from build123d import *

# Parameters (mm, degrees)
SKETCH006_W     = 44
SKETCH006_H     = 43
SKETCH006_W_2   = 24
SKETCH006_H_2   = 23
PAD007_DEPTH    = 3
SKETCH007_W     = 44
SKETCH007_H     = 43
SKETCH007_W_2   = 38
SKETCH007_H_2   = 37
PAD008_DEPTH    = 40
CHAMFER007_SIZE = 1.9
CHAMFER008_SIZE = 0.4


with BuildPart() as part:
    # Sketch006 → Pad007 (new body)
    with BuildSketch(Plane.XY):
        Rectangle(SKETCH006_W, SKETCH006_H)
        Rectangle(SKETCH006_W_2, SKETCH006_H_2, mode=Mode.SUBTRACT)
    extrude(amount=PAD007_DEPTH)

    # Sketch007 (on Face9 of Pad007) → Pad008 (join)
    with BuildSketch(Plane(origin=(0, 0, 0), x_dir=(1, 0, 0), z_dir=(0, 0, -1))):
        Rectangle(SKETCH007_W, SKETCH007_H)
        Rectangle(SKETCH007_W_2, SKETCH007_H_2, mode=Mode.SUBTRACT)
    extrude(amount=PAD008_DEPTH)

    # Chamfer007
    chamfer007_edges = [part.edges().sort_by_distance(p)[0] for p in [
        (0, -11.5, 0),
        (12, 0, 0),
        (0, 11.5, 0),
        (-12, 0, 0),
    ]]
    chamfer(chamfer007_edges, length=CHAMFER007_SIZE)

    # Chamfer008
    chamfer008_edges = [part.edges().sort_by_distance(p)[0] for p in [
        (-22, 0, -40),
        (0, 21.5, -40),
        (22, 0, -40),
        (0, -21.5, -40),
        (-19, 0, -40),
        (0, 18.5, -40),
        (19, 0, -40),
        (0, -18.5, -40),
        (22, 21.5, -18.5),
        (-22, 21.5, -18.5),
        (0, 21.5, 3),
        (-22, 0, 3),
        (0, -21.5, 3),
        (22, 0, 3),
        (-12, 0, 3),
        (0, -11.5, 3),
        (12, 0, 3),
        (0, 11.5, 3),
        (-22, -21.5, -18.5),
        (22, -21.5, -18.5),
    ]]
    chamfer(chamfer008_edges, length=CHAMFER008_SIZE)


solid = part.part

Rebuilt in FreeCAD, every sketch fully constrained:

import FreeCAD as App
import Part
import Sketcher

V = App.Vector


def edges_at(feature, points):
    """Names of the edges that pass closest to the given points."""
    edges = feature.Shape.Edges
    near = lambda p: min(range(len(edges)), key=lambda i: edges[i].distToShape(Part.Vertex(*p))[0])
    return sorted({f"Edge{near(p) + 1}" for p in points})


def add_polygon(sketch, points):
    """Adds a closed chain of lines whose ends are joined by coincident constraints."""
    first, n = sketch.GeometryCount, len(points)
    for a, b in zip(points, points[1:] + points[:1]):
        sketch.addGeometry(Part.LineSegment(App.Vector(*a, 0), App.Vector(*b, 0)), False)
    for i in range(n):
        sketch.addConstraint(Sketcher.Constraint("Coincident", first + i, 2, first + (i + 1) % n, 1))

doc = App.newDocument("Part")
body = doc.addObject("PartDesign::Body", "Body")

sketch1 = body.newObject("Sketcher::SketchObject", "Sketch")
sketch1.AttachmentSupport = (doc.getObject("XY_Plane"), [""])
sketch1.MapMode = "FlatFace"
add_polygon(sketch1, [(-22, 22), (-22, -22), (22, -22), (22, 22)])
add_polygon(sketch1, [(12, -12), (-12, -12), (-12, 12), (12, 12)])
sketch1.addConstraint([
    Sketcher.Constraint("Vertical", 0),
    Sketcher.Constraint("Horizontal", 1),
    Sketcher.Constraint("Vertical", 2),
    Sketcher.Constraint("Horizontal", 3),
    Sketcher.Constraint("Horizontal", 4),
    Sketcher.Constraint("Vertical", 5),
    Sketcher.Constraint("Horizontal", 6),
    Sketcher.Constraint("Vertical", 7),
    Sketcher.Constraint("Symmetric", 0, 2, 2, 2, -1, 1),
    Sketcher.Constraint("Symmetric", 4, 2, 6, 2, -1, 1),
    Sketcher.Constraint("DistanceX", 1, 1, 1, 2, 44.0),
    Sketcher.Constraint("DistanceX", 4, 2, 4, 1, 24.0),
    Sketcher.Constraint("DistanceY", 0, 2, 0, 1, 43.0),
    Sketcher.Constraint("DistanceY", 5, 1, 5, 2, 23.0),
])
pad1 = body.newObject("PartDesign::Pad", "Pad")
pad1.Profile = sketch1
pad1.Length = 3

sketch2 = body.newObject("Sketcher::SketchObject", "Sketch001")
sketch2.AttachmentSupport = (doc.getObject("XY_Plane"), [""])
sketch2.MapMode = "FlatFace"
add_polygon(sketch2, [(-22, -22), (-22, 22), (22, 22), (22, -22)])
add_polygon(sketch2, [(19, 18), (-19, 18), (-19, -18), (19, -18)])
sketch2.addConstraint([
    Sketcher.Constraint("Vertical", 0),
    Sketcher.Constraint("Horizontal", 1),
    Sketcher.Constraint("Vertical", 2),
    Sketcher.Constraint("Horizontal", 3),
    Sketcher.Constraint("Horizontal", 4),
    Sketcher.Constraint("Vertical", 5),
    Sketcher.Constraint("Horizontal", 6),
    Sketcher.Constraint("Vertical", 7),
    Sketcher.Constraint("Symmetric", 0, 2, 2, 2, -1, 1),
    Sketcher.Constraint("Symmetric", 4, 2, 6, 2, -1, 1),
    Sketcher.Constraint("DistanceX", 1, 1, 1, 2, 44.0),
    Sketcher.Constraint("DistanceX", 4, 2, 4, 1, 38.0),
    Sketcher.Constraint("DistanceY", 0, 1, 0, 2, 43.0),
    Sketcher.Constraint("DistanceY", 5, 2, 5, 1, 37.0),
])
pad2 = body.newObject("PartDesign::Pad", "Pad001")
pad2.Profile = sketch2
pad2.Length = 40
pad2.Reversed = True
doc.recompute()

chamfer = body.newObject("PartDesign::Chamfer", "Chamfer")
chamfer.Base = (pad2, edges_at(pad2, [
    (0, -11.5, 0),
    (12, 0, 0),
    (0, 11.5, 0),
    (-12, 0, 0),
]))
chamfer.Size = 1.9
doc.recompute()

chamfer2 = body.newObject("PartDesign::Chamfer", "Chamfer001")
chamfer2.Base = (chamfer, edges_at(chamfer, [
    (-22, 0, -40),
    (0, 21.5, -40),
    (22, 0, -40),
    (0, -21.5, -40),
    (-19, 0, -40),
    (0, 18.5, -40),
    (19, 0, -40),
    (0, -18.5, -40),
    (22, 21.5, -18.5),
    (-22, 21.5, -18.5),
    (0, 21.5, 3),
    (-22, 0, 3),
    (0, -21.5, 3),
    (22, 0, 3),
    (-12, 0, 3),
    (0, -11.5, 3),
    (12, 0, 3),
    (0, 11.5, 3),
    (-22, -21.5, -18.5),
    (22, -21.5, -18.5),
]))
chamfer2.Size = 0.4

doc.recompute()
